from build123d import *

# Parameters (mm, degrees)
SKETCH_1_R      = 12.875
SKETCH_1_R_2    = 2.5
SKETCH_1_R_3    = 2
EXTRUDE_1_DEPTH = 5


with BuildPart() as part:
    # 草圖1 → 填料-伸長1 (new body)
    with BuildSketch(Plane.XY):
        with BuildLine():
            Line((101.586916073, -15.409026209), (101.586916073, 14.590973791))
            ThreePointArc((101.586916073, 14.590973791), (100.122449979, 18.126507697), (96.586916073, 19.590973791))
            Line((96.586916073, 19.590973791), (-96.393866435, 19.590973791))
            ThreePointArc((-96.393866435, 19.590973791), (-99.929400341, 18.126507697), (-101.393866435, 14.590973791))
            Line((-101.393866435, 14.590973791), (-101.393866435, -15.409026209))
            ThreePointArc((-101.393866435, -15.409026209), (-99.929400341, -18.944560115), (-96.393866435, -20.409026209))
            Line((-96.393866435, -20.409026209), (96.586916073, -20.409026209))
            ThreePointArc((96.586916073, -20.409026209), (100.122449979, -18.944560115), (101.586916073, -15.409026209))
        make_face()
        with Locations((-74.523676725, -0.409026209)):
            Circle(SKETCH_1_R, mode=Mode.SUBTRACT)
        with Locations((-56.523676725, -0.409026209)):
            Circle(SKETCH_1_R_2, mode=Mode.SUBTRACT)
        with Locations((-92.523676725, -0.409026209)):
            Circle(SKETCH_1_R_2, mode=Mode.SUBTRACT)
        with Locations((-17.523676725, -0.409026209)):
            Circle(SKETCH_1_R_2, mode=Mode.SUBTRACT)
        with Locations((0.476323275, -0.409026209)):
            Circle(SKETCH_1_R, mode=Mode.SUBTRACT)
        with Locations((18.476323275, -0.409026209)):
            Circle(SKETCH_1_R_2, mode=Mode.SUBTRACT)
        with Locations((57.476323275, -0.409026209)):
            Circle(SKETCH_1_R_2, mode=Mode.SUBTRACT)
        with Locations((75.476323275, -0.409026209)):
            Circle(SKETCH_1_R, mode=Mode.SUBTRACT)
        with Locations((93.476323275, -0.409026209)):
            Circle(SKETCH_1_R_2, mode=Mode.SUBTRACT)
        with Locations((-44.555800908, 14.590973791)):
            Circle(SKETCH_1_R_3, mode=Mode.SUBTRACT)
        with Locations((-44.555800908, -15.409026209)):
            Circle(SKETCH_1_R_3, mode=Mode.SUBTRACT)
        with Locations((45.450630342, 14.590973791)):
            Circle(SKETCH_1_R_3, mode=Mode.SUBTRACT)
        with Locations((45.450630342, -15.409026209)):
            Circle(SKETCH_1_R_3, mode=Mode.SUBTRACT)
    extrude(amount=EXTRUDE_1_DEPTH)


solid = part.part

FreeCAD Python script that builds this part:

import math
import FreeCAD as App
import Part
import Sketcher

V = App.Vector
Q = App.Units.Quantity

doc = App.newDocument("Part")
params = doc.addObject("Spreadsheet::Sheet", "Params")
for row, (alias, value) in enumerate([
    ("sketch1_diameter", "4 mm"),
    ("sketch1_diameter2", "5 mm"),
    ("sketch1_radius", "5 mm"),
    ("sketch1_diameter3", "25.75 mm"),
    ("sketch1_height", "30 mm"),
    ("pad1_length", "5 mm"),
], start=1):
    params.set(f"A{row}", alias)
    params.set(f"B{row}", "=" + value)
    params.setAlias(f"B{row}", alias)

body = doc.addObject("PartDesign::Body", "Body")

sketch1 = body.newObject("Sketcher::SketchObject", "Sketch")
sketch1.AttachmentSupport = (doc.getObject("XY_Plane"), [""])
sketch1.MapMode = "FlatFace"
sketch1.addGeometry([
    Part.LineSegment(V(101.6, -15.4, 0), V(101.6, 14.6, 0)),
    Part.ArcOfCircle(Part.Circle(V(96.6, 14.6, 0), V(0, 0, 1), 5), math.radians(0), math.radians(90)),
    Part.LineSegment(V(96.6, 19.6, 0), V(-96.4, 19.6, 0)),
    Part.ArcOfCircle(Part.Circle(V(-96.4, 14.6, 0), V(0, 0, 1), 5), math.radians(90), math.radians(180)),
    Part.LineSegment(V(-101.4, 14.6, 0), V(-101.4, -15.4, 0)),
    Part.ArcOfCircle(Part.Circle(V(-96.4, -15.4, 0), V(0, 0, 1), 5), math.radians(180), math.radians(270)),
    Part.LineSegment(V(-96.4, -20.4, 0), V(96.6, -20.4, 0)),
    Part.ArcOfCircle(Part.Circle(V(96.6, -15.4, 0), V(0, 0, 1), 5), math.radians(-90), math.radians(0)),
    Part.Circle(V(-44.6, -15.4, 0), V(0, 0, 1), 2),
    Part.Circle(V(45.5, -15.4, 0), V(0, 0, 1), 2),
    Part.Circle(V(-92.5, -0.4, 0), V(0, 0, 1), 2.5),
    Part.Circle(V(-74.5, -0.4, 0), V(0, 0, 1), 12.9),
    Part.Circle(V(-56.5, -0.4, 0), V(0, 0, 1), 2.5),
    Part.Circle(V(-17.5, -0.4, 0), V(0, 0, 1), 2.5),
    Part.Circle(V(-44.6, 14.6, 0), V(0, 0, 1), 2),
    Part.Circle(V(0.5, -0.4, 0), V(0, 0, 1), 12.9),
    Part.Circle(V(18.5, -0.4, 0), V(0, 0, 1), 2.5),
    Part.Circle(V(57.5, -0.4, 0), V(0, 0, 1), 2.5),
    Part.Circle(V(75.5, -0.4, 0), V(0, 0, 1), 12.9),
    Part.Circle(V(93.5, -0.4, 0), V(0, 0, 1), 2.5),
    Part.Circle(V(45.5, 14.6, 0), V(0, 0, 1), 2),
], False)
sketch1.addConstraint([
    Sketcher.Constraint("Tangent", 0, 2, 1, 1),
    Sketcher.Constraint("Tangent", 1, 2, 2, 1),
    Sketcher.Constraint("Tangent", 2, 2, 3, 1),
    Sketcher.Constraint("Tangent", 3, 2, 4, 1),
    Sketcher.Constraint("Tangent", 4, 2, 5, 1),
    Sketcher.Constraint("Tangent", 5, 2, 6, 1),
    Sketcher.Constraint("Tangent", 6, 2, 7, 1),
    Sketcher.Constraint("Tangent", 7, 2, 0, 1),
    Sketcher.Constraint("Vertical", 0),
    Sketcher.Constraint("Horizontal", 2),
    Sketcher.Constraint("Vertical", 4),
    Sketcher.Constraint("Horizontal", 6),
    Sketcher.Constraint("Equal", 1, 3),
    Sketcher.Constraint("Equal", 3, 5),
    Sketcher.Constraint("Equal", 5, 7),
    Sketcher.Constraint("Equal", 8, 9),
    Sketcher.Constraint("Equal", 10, 12),
    Sketcher.Constraint("Equal", 12, 13),
    Sketcher.Constraint("Equal", 9, 14),
    Sketcher.Constraint("Equal", 11, 15),
    Sketcher.Constraint("Equal", 13, 16),
    Sketcher.Constraint("Equal", 16, 17),
    Sketcher.Constraint("Equal", 15, 18),
    Sketcher.Constraint("Equal", 17, 19),
    Sketcher.Constraint("Equal", 14, 20),
    Sketcher.Constraint("Horizontal", 7, 3, 8, 3),
    Sketcher.Constraint("Horizontal", 8, 3, 9, 3),
    Sketcher.Constraint("Horizontal", 10, 3, 11, 3),
    Sketcher.Constraint("Horizontal", 11, 3, 12, 3),
    Sketcher.Constraint("Horizontal", 12, 3, 13, 3),
    Sketcher.Constraint("Horizontal", 3, 3, 14, 3),
    Sketcher.Constraint("Horizontal", 13, 3, 15, 3),
    Sketcher.Constraint("Horizontal", 15, 3, 16, 3),
    Sketcher.Constraint("Horizontal", 16, 3, 17, 3),
    Sketcher.Constraint("Horizontal", 17, 3, 18, 3),
    Sketcher.Constraint("Horizontal", 18, 3, 19, 3),
    Sketcher.Constraint("Horizontal", 14, 3, 20, 3),
    Sketcher.Constraint("Vertical", 8, 3, 14, 3),
    Sketcher.Constraint("Vertical", 9, 3, 20, 3),
    Sketcher.Constraint("Diameter", 8, Q("4 mm")),
    Sketcher.Constraint("Diameter", 10, Q("5 mm")),
    Sketcher.Constraint("Radius", 1, Q("5 mm")),
    Sketcher.Constraint("Diameter", 11, Q("25.75 mm")),
    Sketcher.Constraint("DistanceY", 0, 1, 0, 2, Q("30 mm")),
    Sketcher.Constraint("DistanceY", 10, 3, 3, 3, Q("15 mm")),
    Sketcher.Constraint("DistanceX", 10, 3, 11, 3, Q("18 mm")),
    Sketcher.Constraint("DistanceX", 11, 3, 12, 3, Q("18 mm")),
    Sketcher.Constraint("DistanceX", 12, 3, 13, 3, Q("39 mm")),
    Sketcher.Constraint("DistanceX", 13, 3, 15, 3, Q("18 mm")),
    Sketcher.Constraint("DistanceX", 15, 3, 16, 3, Q("18 mm")),
    Sketcher.Constraint("DistanceX", 16, 3, 17, 3, Q("39 mm")),
    Sketcher.Constraint("DistanceX", 17, 3, 18, 3, Q("18 mm")),
    Sketcher.Constraint("DistanceX", 18, 3, 19, 3, Q("18 mm")),
    Sketcher.Constraint("DistanceX", 8, 3, -1, 1, Q("44.555801 mm")),
    Sketcher.Constraint("DistanceX", 2, 2, 2, 1, Q("192.980783 mm")),
    Sketcher.Constraint("DistanceX", -1, 1, 9, 3, Q("45.45063 mm")),
    Sketcher.Constraint("DistanceX", 3, 3, 10, 3, Q("3.87019 mm")),
    Sketcher.Constraint("DistanceX", -1, 1, 1, 3, Q("96.586916 mm")),
    Sketcher.Constraint("DistanceY", -1, 1, 1, 3, Q("14.590974 mm")),
])
sketch1.setExpression("Constraints[39]", "Params.sketch1_diameter")
sketch1.setExpression("Constraints[40]", "Params.sketch1_diameter2")
sketch1.setExpression("Constraints[41]", "Params.sketch1_radius")
sketch1.setExpression("Constraints[42]", "Params.sketch1_diameter3")
sketch1.setExpression("Constraints[43]", "Params.sketch1_height")
pad1 = body.newObject("PartDesign::Pad", "Pad")
pad1.Profile = sketch1
pad1.setExpression("Length", "Params.pad1_length")

doc.recompute()
